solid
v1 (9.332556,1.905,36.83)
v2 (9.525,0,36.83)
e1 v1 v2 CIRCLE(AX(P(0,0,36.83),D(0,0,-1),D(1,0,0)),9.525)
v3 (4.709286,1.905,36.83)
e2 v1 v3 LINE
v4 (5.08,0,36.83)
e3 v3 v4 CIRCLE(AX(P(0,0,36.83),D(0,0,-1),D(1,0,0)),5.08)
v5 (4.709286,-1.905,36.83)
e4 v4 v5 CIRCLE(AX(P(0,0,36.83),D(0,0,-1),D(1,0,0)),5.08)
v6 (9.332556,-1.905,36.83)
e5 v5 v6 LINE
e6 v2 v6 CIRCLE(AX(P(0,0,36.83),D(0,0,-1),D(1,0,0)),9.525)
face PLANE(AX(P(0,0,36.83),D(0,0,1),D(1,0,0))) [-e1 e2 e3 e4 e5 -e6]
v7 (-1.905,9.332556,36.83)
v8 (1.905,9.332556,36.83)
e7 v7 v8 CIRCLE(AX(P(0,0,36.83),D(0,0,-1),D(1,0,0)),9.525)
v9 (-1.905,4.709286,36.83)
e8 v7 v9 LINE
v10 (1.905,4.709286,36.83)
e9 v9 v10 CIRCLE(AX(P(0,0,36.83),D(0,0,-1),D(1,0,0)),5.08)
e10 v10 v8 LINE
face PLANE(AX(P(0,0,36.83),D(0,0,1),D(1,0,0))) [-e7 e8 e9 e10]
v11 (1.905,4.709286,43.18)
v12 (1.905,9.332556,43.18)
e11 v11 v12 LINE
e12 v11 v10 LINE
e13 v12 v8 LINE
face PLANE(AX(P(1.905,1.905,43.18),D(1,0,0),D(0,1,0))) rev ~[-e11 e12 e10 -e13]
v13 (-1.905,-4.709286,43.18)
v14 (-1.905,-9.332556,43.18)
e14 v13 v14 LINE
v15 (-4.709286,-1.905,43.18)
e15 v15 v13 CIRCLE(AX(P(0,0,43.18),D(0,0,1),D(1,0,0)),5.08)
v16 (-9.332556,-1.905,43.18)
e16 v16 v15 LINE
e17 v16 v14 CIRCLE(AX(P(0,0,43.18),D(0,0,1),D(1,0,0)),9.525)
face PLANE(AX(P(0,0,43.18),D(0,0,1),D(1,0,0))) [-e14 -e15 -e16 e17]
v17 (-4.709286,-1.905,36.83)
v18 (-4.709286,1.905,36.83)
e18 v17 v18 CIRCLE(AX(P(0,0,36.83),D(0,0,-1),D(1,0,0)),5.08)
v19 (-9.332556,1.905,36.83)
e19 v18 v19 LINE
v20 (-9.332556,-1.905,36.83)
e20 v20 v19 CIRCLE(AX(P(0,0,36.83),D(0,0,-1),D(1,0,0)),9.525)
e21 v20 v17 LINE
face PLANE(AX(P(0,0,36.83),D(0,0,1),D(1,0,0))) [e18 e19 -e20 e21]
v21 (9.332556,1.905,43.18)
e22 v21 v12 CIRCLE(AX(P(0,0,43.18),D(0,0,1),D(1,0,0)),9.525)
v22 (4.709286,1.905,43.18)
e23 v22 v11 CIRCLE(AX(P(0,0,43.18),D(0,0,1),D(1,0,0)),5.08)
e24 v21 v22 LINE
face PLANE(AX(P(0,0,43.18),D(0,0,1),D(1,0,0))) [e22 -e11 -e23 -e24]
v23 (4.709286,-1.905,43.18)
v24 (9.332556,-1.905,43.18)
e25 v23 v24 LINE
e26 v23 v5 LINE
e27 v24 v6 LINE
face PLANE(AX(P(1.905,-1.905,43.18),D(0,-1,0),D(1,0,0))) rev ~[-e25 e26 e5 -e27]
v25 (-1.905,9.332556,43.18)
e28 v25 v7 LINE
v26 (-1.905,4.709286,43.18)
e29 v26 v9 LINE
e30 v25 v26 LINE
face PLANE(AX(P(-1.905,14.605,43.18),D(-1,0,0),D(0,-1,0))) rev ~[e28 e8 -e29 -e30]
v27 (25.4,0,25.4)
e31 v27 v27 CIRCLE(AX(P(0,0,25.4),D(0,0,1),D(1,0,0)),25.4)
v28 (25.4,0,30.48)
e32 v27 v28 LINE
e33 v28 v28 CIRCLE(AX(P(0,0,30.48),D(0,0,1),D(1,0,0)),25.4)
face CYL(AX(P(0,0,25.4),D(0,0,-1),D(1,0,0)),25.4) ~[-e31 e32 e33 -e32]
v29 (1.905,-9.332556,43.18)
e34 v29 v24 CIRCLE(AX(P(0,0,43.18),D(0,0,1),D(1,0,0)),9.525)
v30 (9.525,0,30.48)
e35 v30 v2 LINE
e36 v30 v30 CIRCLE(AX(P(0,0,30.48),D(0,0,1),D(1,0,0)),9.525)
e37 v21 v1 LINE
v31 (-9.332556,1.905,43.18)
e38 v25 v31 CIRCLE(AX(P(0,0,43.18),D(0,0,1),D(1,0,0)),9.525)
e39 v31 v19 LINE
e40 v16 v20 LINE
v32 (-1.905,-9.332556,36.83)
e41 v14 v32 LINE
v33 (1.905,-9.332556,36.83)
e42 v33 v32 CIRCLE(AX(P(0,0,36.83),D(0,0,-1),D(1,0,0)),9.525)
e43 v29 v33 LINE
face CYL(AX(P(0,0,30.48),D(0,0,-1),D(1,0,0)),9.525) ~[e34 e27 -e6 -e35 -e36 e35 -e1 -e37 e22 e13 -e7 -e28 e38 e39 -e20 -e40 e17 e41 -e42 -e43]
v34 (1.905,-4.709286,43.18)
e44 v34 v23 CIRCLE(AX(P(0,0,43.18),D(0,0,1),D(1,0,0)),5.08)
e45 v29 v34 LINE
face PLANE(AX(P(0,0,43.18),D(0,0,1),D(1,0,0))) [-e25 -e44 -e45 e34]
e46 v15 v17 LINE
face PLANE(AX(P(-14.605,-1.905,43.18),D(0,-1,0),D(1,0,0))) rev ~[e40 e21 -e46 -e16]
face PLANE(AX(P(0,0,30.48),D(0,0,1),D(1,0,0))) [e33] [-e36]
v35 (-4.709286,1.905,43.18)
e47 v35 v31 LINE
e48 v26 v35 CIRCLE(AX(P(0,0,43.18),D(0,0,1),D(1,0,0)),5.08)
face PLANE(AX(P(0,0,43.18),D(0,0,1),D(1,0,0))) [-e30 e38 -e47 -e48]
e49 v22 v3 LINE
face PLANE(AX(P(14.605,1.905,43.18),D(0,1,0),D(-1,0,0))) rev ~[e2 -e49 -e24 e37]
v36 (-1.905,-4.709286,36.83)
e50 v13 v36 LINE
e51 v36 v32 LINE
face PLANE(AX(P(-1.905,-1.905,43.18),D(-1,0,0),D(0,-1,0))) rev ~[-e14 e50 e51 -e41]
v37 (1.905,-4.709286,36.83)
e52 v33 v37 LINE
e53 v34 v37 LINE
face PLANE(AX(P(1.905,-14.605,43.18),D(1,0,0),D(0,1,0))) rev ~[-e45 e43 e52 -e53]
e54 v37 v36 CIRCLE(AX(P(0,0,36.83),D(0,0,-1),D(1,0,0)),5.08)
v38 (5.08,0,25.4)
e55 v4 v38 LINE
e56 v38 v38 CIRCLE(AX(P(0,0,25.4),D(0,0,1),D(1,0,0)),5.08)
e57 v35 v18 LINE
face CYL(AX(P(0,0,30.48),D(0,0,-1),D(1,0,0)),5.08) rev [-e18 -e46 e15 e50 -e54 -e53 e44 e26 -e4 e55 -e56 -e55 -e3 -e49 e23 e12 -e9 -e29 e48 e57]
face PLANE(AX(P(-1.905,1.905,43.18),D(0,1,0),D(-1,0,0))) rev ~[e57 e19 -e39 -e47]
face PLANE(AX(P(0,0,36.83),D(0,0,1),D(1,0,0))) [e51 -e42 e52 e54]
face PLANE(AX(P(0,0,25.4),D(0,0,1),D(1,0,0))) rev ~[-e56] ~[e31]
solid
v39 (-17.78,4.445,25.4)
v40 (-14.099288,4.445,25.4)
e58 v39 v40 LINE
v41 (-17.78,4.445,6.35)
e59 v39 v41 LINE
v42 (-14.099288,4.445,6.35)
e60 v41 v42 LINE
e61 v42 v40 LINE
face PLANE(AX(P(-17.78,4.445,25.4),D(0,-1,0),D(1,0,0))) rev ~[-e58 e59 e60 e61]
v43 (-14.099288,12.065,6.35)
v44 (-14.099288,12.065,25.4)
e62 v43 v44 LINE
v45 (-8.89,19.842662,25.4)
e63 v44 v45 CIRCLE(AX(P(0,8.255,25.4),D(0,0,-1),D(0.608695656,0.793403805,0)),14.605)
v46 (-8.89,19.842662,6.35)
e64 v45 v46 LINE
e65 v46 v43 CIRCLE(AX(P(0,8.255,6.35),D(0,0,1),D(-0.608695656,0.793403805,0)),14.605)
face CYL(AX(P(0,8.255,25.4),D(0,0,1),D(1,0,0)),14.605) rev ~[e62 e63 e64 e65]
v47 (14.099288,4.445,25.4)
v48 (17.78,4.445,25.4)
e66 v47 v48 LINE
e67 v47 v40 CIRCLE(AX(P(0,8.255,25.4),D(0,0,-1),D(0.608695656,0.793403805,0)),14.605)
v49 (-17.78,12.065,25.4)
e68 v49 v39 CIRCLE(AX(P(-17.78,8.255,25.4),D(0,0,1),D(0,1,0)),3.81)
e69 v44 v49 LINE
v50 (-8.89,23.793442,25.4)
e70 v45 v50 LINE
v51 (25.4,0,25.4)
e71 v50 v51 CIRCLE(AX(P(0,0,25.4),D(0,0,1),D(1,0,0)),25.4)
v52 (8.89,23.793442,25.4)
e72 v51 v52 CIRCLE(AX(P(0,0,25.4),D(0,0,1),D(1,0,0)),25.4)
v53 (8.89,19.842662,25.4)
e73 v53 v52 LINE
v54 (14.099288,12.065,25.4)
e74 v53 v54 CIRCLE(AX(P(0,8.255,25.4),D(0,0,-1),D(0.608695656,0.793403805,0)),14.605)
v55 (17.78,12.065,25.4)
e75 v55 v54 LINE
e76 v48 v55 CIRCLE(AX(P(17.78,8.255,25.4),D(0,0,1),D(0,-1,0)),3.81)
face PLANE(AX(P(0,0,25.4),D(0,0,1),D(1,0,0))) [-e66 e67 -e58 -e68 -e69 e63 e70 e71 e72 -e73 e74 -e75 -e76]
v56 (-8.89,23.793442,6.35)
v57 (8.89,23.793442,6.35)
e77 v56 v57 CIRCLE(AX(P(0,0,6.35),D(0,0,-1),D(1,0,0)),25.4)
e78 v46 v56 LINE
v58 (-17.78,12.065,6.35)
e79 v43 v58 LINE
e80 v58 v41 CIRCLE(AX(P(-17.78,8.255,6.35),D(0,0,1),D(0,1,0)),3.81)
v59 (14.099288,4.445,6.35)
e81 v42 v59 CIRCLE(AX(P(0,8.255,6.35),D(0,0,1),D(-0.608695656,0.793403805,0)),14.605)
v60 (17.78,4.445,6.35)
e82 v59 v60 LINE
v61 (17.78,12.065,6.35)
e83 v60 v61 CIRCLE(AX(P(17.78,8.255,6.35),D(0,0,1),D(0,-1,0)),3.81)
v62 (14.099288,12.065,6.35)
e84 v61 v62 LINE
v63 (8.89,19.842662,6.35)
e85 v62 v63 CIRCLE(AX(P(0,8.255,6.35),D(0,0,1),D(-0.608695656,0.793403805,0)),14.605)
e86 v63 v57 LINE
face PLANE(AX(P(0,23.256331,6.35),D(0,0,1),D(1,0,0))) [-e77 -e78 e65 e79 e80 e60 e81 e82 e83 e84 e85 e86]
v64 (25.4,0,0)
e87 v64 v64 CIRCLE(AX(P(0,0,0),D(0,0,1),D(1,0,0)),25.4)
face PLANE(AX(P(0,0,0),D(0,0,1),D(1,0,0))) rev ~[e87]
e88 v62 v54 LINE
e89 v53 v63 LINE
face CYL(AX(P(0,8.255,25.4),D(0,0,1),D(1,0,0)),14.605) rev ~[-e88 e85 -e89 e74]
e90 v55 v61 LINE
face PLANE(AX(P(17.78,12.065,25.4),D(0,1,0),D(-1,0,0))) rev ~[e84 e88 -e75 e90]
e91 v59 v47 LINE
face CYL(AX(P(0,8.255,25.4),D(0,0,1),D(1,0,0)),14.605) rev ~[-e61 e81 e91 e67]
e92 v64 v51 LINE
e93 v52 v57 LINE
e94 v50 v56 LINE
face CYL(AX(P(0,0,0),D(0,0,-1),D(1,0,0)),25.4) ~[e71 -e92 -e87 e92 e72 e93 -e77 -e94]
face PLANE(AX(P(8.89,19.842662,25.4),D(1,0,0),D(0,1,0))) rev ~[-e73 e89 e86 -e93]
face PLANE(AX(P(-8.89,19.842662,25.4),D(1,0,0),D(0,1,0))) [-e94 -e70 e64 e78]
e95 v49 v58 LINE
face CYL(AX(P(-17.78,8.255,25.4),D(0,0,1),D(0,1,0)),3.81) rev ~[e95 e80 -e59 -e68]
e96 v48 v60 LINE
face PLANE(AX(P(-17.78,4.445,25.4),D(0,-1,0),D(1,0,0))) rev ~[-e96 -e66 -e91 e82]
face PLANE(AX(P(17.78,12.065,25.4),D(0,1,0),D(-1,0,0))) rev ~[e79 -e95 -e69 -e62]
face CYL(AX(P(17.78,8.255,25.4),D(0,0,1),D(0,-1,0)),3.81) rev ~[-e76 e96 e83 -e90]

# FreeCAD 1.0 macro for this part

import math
import FreeCAD as App
import Part
import Sketcher
Q = App.Units.Quantity

doc = App.newDocument("Part")
body = doc.addObject("PartDesign::Body", "Body")

# Sketch on XY plane
sketch1 = body.newObject("Sketcher::SketchObject", "Sketch")
sketch1.AttachmentSupport = (doc.getObject("XY_Plane"), [""])
sketch1.MapMode = "FlatFace"
sketch1.addGeometry(Part.Circle(App.Vector(0, 0, 0), App.Vector(0, 0, 1), 25), False)
sketch1.addConstraint([
    Sketcher.Constraint("Coincident", 0, 3, -1, 1),
    Sketcher.Constraint("Diameter", 0, Q("2 in")),
])
pad1 = body.newObject("PartDesign::Pad", "Pad")
pad1.Profile = sketch1
pad1.Length = Q("1 in")

# Sketch on XY plane
sketch2 = body.newObject("Sketcher::SketchObject", "Sketch001")
sketch2.AttachmentSupport = (doc.getObject("XY_Plane"), [""])
sketch2.MapMode = "FlatFace"
sketch2.AttachmentOffset = App.Placement(App.Vector(0, 0, 1 * 25.4), App.Rotation())
sketch2.addGeometry(Part.Circle(App.Vector(0, 8, 0), App.Vector(0, 0, 1), 15), False)
sketch2.addConstraint([
    Sketcher.Constraint("PointOnObject", 0, 3, -2),
    Sketcher.Constraint("Diameter", 0, Q("1.15 in")),
    Sketcher.Constraint("DistanceY", -1, 1, 0, 3, Q("0.325 in")),
])
pocket1 = body.newObject("PartDesign::Pocket", "Pocket")
pocket1.Profile = sketch2
pocket1.Length = Q("0.75 in")

# Sketch on XZ plane
sketch3 = body.newObject("Sketcher::SketchObject", "Sketch002")
sketch3.AttachmentSupport = (doc.getObject("XZ_Plane"), [""])
sketch3.MapMode = "FlatFace"
sketch3.addGeometry([
    Part.LineSegment(App.Vector(-3.8, 25.4, 0), App.Vector(-3.8, 21.6, 0)),
    Part.LineSegment(App.Vector(-3.8, 21.6, 0), App.Vector(3.8, 21.6, 0)),
    Part.LineSegment(App.Vector(3.8, 21.6, 0), App.Vector(3.8, 25.4, 0)),
    Part.LineSegment(App.Vector(3.8, 25.4, 0), App.Vector(-3.8, 25.4, 0)),
], False)
sketch3.addConstraint([
    Sketcher.Constraint("Coincident", 0, 2, 1, 1),
    Sketcher.Constraint("Coincident", 1, 2, 2, 1),
    Sketcher.Constraint("Coincident", 2, 2, 3, 1),
    Sketcher.Constraint("Coincident", 3, 2, 0, 1),
    Sketcher.Constraint("Vertical", 0),
    Sketcher.Constraint("Horizontal", 1),
    Sketcher.Constraint("Vertical", 2),
    Sketcher.Constraint("Horizontal", 3),
    Sketcher.Constraint("DistanceX", 1, 1, 1, 2, Q("0.3 in")),
    Sketcher.Constraint("DistanceY", -1, 1, 2, 2, Q("1 in")),
    Sketcher.Constraint("DistanceY", 0, 2, 0, 1, Q("0.15 in")),
    Sketcher.Constraint("DistanceX", 0, 2, -1, 1, Q("0.15 in")),
])
pocket2 = body.newObject("PartDesign::Pocket", "Pocket001")
pocket2.Profile = sketch3
pocket2.Type = "ThroughAll"

# Sketch on XY plane
sketch4 = body.newObject("Sketcher::SketchObject", "Sketch003")
sketch4.AttachmentSupport = (doc.getObject("XY_Plane"), [""])
sketch4.MapMode = "FlatFace"
sketch4.AttachmentOffset = App.Placement(App.Vector(0, 0, 1 * 25.4), App.Rotation())
sketch4.addGeometry([
    Part.LineSegment(App.Vector(-9, 27, 0), App.Vector(-9, 20, 0)),
    Part.LineSegment(App.Vector(-9, 20, 0), App.Vector(9, 20, 0)),
    Part.LineSegment(App.Vector(9, 20, 0), App.Vector(9, 27, 0)),
    Part.LineSegment(App.Vector(9, 27, 0), App.Vector(-9, 27, 0)),
], False)
sketch4.addConstraint([
    Sketcher.Constraint("Coincident", 0, 2, 1, 1),
    Sketcher.Constraint("Coincident", 1, 2, 2, 1),
    Sketcher.Constraint("Coincident", 2, 2, 3, 1),
    Sketcher.Constraint("Coincident", 3, 2, 0, 1),
    Sketcher.Constraint("Vertical", 0),
    Sketcher.Constraint("Horizontal", 1),
    Sketcher.Constraint("Vertical", 2),
    Sketcher.Constraint("Horizontal", 3),
    Sketcher.Constraint("DistanceX", 1, 1, 1, 2, Q("0.7 in")),
    Sketcher.Constraint("DistanceX", 0, 2, -1, 1, Q("0.35 in")),
    Sketcher.Constraint("DistanceY", -1, 1, 2, 2, Q("1.05 in")),
    Sketcher.Constraint("DistanceY", 0, 2, 0, 1, Q("6.827337 mm")),
])
pocket3 = body.newObject("PartDesign::Pocket", "Pocket002")
pocket3.Profile = sketch4
pocket3.Length = Q("0.75 in")

# Sketch on XY plane
sketch5 = body.newObject("Sketcher::SketchObject", "Sketch004")
sketch5.AttachmentSupport = (doc.getObject("XY_Plane"), [""])
sketch5.MapMode = "FlatFace"
sketch5.AttachmentOffset = App.Placement(App.Vector(0, 0, 1 * 25.4), App.Rotation())
sketch5.addGeometry([
    Part.LineSegment(App.Vector(17.8, 12.1, 0), App.Vector(-17.8, 12.1, 0)),
    Part.ArcOfCircle(Part.Circle(App.Vector(-17.8, 8.3, 0), App.Vector(0, 0, 1), 3.8), math.radians(90), math.radians(270)),
    Part.LineSegment(App.Vector(-17.8, 4.4, 0), App.Vector(17.8, 4.4, 0)),
    Part.ArcOfCircle(Part.Circle(App.Vector(17.8, 8.3, 0), App.Vector(0, 0, 1), 3.8), math.radians(-90), math.radians(90)),
], False)
sketch5.addConstraint([
    Sketcher.Constraint("Tangent", 0, 2, 1, 1),
    Sketcher.Constraint("Tangent", 1, 2, 2, 1),
    Sketcher.Constraint("Tangent", 2, 2, 3, 1),
    Sketcher.Constraint("Tangent", 3, 2, 0, 1),
    Sketcher.Constraint("Horizontal", 0),
    Sketcher.Constraint("Horizontal", 2),
    Sketcher.Constraint("Radius", 1, Q("0.15 in")),
    Sketcher.Constraint("DistanceX", 0, 2, 0, 1, Q("1.4 in")),
    Sketcher.Constraint("DistanceX", 1, 3, -1, 1, Q("0.7 in")),
    Sketcher.Constraint("DistanceY", -1, 1, 1, 3, Q("0.325 in")),
])
pocket4 = body.newObject("PartDesign::Pocket", "Pocket003")
pocket4.Profile = sketch5
pocket4.Length = Q("0.75 in")
body2 = doc.addObject("PartDesign::Body", "Body001")

# Sketch on XY plane
sketch6 = body2.newObject("Sketcher::SketchObject", "Sketch005")
sketch6.AttachmentSupport = (doc.getObject("XY_Plane001"), [""])
sketch6.MapMode = "FlatFace"
sketch6.AttachmentOffset = App.Placement(App.Vector(0, 0, 1 * 25.4), App.Rotation())
sketch6.addGeometry([
    Part.Circle(App.Vector(0, 0, 0), App.Vector(0, 0, 1), 25),
    Part.Circle(App.Vector(0, 0, 0), App.Vector(0, 0, 1), 5),
], False)
sketch6.addConstraint([
    Sketcher.Constraint("Coincident", 0, 3, -1, 1),
    Sketcher.Constraint("Coincident", 1, 3, -1, 1),
    Sketcher.Constraint("Diameter", 0, Q("2 in")),
    Sketcher.Constraint("Diameter", 1, Q("0.4 in")),
])
pad2 = body2.newObject("PartDesign::Pad", "Pad001")
pad2.Profile = sketch6
pad2.Length = Q("0.2 in")

# Sketch on XY plane
sketch7 = body2.newObject("Sketcher::SketchObject", "Sketch006")
sketch7.AttachmentSupport = (doc.getObject("XY_Plane001"), [""])
sketch7.MapMode = "FlatFace"
sketch7.AttachmentOffset = App.Placement(App.Vector(0, 0, 1.2 * 25.4), App.Rotation())
sketch7.addGeometry([
    Part.Circle(App.Vector(0, 0, 0), App.Vector(0, 0, 1), 10),
    Part.Circle(App.Vector(0, 0, 0), App.Vector(0, 0, 1), 5),
], False)
sketch7.addConstraint([
    Sketcher.Constraint("Coincident", 0, 3, -1, 1),
    Sketcher.Constraint("Coincident", 1, 3, -1, 1),
    Sketcher.Constraint("Diameter", 1, Q("0.4 in")),
    Sketcher.Constraint("Diameter", 0, Q("0.75 in")),
])
pad3 = body2.newObject("PartDesign::Pad", "Pad002")
pad3.Profile = sketch7
pad3.Length = Q("0.5 in")

# Sketch on XY plane
sketch8 = body2.newObject("Sketcher::SketchObject", "Sketch007")
sketch8.AttachmentSupport = (doc.getObject("XY_Plane001"), [""])
sketch8.MapMode = "FlatFace"
sketch8.AttachmentOffset = App.Placement(App.Vector(0, 0, 1.7 * 25.4), App.Rotation())
sketch8.addGeometry([
    Part.LineSegment(App.Vector(1.9, 14.6, 0), App.Vector(-1.9, 14.6, 0)),  # 0
    Part.LineSegment(App.Vector(-1.9, 14.6, 0), App.Vector(-1.9, 1.9, 0)),  # 1
    Part.LineSegment(App.Vector(-1.9, 1.9, 0), App.Vector(-14.6, 1.9, 0)),  # 2
    Part.LineSegment(App.Vector(-14.6, 1.9, 0), App.Vector(-14.6, -1.9, 0)),  # 3
    Part.LineSegment(App.Vector(-14.6, -1.9, 0), App.Vector(-1.9, -1.9, 0)),  # 4
    Part.LineSegment(App.Vector(-1.9, -1.9, 0), App.Vector(-1.9, -14.6, 0)),  # 5
    Part.LineSegment(App.Vector(-1.9, -14.6, 0), App.Vector(1.9, -14.6, 0)),  # 6
    Part.LineSegment(App.Vector(1.9, -14.6, 0), App.Vector(1.9, -1.9, 0)),  # 7
    Part.LineSegment(App.Vector(1.9, -1.9, 0), App.Vector(14.6, -1.9, 0)),  # 8
    Part.LineSegment(App.Vector(14.6, -1.9, 0), App.Vector(14.6, 1.9, 0)),  # 9
    Part.LineSegment(App.Vector(14.6, 1.9, 0), App.Vector(1.9, 1.9, 0)),  # 10
    Part.LineSegment(App.Vector(1.9, 1.9, 0), App.Vector(1.9, 14.6, 0)),  # 11
], False)
sketch8.addConstraint([
    Sketcher.Constraint("Coincident", 0, 2, 1, 1),
    Sketcher.Constraint("Coincident", 1, 2, 2, 1),
    Sketcher.Constraint("Coincident", 2, 2, 3, 1),
    Sketcher.Constraint("Coincident", 3, 2, 4, 1),
    Sketcher.Constraint("Coincident", 4, 2, 5, 1),
    Sketcher.Constraint("Coincident", 5, 2, 6, 1),
    Sketcher.Constraint("Coincident", 6, 2, 7, 1),
    Sketcher.Constraint("Coincident", 7, 2, 8, 1),
    Sketcher.Constraint("Coincident", 8, 2, 9, 1),
    Sketcher.Constraint("Coincident", 9, 2, 10, 1),
    Sketcher.Constraint("Coincident", 10, 2, 11, 1),
    Sketcher.Constraint("Coincident", 11, 2, 0, 1),
    Sketcher.Constraint("Horizontal", 0),
    Sketcher.Constraint("Vertical", 1),
    Sketcher.Constraint("Horizontal", 2),
    Sketcher.Constraint("Vertical", 3),
    Sketcher.Constraint("Horizontal", 4),
    Sketcher.Constraint("Vertical", 5),
    Sketcher.Constraint("Horizontal", 6),
    Sketcher.Constraint("Vertical", 7),
    Sketcher.Constraint("Horizontal", 8),
    Sketcher.Constraint("Vertical", 9),
    Sketcher.Constraint("Horizontal", 10),
    Sketcher.Constraint("Vertical", 11),
    Sketcher.Constraint("Symmetric", 0, 2, 6, 2, -1, 1),
    Sketcher.Constraint("Symmetric", 2, 2, 8, 2, -1, 1),
    Sketcher.Constraint("Symmetric", 4, 2, 10, 2, -1, 1),
    Sketcher.Constraint("Symmetric", 4, 2, 7, 2, -2),
    Sketcher.Constraint("Equal", 10, 1),
    Sketcher.Constraint("Equal", 6, 3),
    Sketcher.Constraint("DistanceX", 2, 2, 2, 1, Q("0.5 in")),
    Sketcher.Constraint("DistanceX", 0, 2, 0, 1, Q("0.15 in")),
])
pocket5 = body2.newObject("PartDesign::Pocket", "Pocket004")
pocket5.Profile = sketch8
pocket5.Length = Q("0.25 in")

doc.recompute()
